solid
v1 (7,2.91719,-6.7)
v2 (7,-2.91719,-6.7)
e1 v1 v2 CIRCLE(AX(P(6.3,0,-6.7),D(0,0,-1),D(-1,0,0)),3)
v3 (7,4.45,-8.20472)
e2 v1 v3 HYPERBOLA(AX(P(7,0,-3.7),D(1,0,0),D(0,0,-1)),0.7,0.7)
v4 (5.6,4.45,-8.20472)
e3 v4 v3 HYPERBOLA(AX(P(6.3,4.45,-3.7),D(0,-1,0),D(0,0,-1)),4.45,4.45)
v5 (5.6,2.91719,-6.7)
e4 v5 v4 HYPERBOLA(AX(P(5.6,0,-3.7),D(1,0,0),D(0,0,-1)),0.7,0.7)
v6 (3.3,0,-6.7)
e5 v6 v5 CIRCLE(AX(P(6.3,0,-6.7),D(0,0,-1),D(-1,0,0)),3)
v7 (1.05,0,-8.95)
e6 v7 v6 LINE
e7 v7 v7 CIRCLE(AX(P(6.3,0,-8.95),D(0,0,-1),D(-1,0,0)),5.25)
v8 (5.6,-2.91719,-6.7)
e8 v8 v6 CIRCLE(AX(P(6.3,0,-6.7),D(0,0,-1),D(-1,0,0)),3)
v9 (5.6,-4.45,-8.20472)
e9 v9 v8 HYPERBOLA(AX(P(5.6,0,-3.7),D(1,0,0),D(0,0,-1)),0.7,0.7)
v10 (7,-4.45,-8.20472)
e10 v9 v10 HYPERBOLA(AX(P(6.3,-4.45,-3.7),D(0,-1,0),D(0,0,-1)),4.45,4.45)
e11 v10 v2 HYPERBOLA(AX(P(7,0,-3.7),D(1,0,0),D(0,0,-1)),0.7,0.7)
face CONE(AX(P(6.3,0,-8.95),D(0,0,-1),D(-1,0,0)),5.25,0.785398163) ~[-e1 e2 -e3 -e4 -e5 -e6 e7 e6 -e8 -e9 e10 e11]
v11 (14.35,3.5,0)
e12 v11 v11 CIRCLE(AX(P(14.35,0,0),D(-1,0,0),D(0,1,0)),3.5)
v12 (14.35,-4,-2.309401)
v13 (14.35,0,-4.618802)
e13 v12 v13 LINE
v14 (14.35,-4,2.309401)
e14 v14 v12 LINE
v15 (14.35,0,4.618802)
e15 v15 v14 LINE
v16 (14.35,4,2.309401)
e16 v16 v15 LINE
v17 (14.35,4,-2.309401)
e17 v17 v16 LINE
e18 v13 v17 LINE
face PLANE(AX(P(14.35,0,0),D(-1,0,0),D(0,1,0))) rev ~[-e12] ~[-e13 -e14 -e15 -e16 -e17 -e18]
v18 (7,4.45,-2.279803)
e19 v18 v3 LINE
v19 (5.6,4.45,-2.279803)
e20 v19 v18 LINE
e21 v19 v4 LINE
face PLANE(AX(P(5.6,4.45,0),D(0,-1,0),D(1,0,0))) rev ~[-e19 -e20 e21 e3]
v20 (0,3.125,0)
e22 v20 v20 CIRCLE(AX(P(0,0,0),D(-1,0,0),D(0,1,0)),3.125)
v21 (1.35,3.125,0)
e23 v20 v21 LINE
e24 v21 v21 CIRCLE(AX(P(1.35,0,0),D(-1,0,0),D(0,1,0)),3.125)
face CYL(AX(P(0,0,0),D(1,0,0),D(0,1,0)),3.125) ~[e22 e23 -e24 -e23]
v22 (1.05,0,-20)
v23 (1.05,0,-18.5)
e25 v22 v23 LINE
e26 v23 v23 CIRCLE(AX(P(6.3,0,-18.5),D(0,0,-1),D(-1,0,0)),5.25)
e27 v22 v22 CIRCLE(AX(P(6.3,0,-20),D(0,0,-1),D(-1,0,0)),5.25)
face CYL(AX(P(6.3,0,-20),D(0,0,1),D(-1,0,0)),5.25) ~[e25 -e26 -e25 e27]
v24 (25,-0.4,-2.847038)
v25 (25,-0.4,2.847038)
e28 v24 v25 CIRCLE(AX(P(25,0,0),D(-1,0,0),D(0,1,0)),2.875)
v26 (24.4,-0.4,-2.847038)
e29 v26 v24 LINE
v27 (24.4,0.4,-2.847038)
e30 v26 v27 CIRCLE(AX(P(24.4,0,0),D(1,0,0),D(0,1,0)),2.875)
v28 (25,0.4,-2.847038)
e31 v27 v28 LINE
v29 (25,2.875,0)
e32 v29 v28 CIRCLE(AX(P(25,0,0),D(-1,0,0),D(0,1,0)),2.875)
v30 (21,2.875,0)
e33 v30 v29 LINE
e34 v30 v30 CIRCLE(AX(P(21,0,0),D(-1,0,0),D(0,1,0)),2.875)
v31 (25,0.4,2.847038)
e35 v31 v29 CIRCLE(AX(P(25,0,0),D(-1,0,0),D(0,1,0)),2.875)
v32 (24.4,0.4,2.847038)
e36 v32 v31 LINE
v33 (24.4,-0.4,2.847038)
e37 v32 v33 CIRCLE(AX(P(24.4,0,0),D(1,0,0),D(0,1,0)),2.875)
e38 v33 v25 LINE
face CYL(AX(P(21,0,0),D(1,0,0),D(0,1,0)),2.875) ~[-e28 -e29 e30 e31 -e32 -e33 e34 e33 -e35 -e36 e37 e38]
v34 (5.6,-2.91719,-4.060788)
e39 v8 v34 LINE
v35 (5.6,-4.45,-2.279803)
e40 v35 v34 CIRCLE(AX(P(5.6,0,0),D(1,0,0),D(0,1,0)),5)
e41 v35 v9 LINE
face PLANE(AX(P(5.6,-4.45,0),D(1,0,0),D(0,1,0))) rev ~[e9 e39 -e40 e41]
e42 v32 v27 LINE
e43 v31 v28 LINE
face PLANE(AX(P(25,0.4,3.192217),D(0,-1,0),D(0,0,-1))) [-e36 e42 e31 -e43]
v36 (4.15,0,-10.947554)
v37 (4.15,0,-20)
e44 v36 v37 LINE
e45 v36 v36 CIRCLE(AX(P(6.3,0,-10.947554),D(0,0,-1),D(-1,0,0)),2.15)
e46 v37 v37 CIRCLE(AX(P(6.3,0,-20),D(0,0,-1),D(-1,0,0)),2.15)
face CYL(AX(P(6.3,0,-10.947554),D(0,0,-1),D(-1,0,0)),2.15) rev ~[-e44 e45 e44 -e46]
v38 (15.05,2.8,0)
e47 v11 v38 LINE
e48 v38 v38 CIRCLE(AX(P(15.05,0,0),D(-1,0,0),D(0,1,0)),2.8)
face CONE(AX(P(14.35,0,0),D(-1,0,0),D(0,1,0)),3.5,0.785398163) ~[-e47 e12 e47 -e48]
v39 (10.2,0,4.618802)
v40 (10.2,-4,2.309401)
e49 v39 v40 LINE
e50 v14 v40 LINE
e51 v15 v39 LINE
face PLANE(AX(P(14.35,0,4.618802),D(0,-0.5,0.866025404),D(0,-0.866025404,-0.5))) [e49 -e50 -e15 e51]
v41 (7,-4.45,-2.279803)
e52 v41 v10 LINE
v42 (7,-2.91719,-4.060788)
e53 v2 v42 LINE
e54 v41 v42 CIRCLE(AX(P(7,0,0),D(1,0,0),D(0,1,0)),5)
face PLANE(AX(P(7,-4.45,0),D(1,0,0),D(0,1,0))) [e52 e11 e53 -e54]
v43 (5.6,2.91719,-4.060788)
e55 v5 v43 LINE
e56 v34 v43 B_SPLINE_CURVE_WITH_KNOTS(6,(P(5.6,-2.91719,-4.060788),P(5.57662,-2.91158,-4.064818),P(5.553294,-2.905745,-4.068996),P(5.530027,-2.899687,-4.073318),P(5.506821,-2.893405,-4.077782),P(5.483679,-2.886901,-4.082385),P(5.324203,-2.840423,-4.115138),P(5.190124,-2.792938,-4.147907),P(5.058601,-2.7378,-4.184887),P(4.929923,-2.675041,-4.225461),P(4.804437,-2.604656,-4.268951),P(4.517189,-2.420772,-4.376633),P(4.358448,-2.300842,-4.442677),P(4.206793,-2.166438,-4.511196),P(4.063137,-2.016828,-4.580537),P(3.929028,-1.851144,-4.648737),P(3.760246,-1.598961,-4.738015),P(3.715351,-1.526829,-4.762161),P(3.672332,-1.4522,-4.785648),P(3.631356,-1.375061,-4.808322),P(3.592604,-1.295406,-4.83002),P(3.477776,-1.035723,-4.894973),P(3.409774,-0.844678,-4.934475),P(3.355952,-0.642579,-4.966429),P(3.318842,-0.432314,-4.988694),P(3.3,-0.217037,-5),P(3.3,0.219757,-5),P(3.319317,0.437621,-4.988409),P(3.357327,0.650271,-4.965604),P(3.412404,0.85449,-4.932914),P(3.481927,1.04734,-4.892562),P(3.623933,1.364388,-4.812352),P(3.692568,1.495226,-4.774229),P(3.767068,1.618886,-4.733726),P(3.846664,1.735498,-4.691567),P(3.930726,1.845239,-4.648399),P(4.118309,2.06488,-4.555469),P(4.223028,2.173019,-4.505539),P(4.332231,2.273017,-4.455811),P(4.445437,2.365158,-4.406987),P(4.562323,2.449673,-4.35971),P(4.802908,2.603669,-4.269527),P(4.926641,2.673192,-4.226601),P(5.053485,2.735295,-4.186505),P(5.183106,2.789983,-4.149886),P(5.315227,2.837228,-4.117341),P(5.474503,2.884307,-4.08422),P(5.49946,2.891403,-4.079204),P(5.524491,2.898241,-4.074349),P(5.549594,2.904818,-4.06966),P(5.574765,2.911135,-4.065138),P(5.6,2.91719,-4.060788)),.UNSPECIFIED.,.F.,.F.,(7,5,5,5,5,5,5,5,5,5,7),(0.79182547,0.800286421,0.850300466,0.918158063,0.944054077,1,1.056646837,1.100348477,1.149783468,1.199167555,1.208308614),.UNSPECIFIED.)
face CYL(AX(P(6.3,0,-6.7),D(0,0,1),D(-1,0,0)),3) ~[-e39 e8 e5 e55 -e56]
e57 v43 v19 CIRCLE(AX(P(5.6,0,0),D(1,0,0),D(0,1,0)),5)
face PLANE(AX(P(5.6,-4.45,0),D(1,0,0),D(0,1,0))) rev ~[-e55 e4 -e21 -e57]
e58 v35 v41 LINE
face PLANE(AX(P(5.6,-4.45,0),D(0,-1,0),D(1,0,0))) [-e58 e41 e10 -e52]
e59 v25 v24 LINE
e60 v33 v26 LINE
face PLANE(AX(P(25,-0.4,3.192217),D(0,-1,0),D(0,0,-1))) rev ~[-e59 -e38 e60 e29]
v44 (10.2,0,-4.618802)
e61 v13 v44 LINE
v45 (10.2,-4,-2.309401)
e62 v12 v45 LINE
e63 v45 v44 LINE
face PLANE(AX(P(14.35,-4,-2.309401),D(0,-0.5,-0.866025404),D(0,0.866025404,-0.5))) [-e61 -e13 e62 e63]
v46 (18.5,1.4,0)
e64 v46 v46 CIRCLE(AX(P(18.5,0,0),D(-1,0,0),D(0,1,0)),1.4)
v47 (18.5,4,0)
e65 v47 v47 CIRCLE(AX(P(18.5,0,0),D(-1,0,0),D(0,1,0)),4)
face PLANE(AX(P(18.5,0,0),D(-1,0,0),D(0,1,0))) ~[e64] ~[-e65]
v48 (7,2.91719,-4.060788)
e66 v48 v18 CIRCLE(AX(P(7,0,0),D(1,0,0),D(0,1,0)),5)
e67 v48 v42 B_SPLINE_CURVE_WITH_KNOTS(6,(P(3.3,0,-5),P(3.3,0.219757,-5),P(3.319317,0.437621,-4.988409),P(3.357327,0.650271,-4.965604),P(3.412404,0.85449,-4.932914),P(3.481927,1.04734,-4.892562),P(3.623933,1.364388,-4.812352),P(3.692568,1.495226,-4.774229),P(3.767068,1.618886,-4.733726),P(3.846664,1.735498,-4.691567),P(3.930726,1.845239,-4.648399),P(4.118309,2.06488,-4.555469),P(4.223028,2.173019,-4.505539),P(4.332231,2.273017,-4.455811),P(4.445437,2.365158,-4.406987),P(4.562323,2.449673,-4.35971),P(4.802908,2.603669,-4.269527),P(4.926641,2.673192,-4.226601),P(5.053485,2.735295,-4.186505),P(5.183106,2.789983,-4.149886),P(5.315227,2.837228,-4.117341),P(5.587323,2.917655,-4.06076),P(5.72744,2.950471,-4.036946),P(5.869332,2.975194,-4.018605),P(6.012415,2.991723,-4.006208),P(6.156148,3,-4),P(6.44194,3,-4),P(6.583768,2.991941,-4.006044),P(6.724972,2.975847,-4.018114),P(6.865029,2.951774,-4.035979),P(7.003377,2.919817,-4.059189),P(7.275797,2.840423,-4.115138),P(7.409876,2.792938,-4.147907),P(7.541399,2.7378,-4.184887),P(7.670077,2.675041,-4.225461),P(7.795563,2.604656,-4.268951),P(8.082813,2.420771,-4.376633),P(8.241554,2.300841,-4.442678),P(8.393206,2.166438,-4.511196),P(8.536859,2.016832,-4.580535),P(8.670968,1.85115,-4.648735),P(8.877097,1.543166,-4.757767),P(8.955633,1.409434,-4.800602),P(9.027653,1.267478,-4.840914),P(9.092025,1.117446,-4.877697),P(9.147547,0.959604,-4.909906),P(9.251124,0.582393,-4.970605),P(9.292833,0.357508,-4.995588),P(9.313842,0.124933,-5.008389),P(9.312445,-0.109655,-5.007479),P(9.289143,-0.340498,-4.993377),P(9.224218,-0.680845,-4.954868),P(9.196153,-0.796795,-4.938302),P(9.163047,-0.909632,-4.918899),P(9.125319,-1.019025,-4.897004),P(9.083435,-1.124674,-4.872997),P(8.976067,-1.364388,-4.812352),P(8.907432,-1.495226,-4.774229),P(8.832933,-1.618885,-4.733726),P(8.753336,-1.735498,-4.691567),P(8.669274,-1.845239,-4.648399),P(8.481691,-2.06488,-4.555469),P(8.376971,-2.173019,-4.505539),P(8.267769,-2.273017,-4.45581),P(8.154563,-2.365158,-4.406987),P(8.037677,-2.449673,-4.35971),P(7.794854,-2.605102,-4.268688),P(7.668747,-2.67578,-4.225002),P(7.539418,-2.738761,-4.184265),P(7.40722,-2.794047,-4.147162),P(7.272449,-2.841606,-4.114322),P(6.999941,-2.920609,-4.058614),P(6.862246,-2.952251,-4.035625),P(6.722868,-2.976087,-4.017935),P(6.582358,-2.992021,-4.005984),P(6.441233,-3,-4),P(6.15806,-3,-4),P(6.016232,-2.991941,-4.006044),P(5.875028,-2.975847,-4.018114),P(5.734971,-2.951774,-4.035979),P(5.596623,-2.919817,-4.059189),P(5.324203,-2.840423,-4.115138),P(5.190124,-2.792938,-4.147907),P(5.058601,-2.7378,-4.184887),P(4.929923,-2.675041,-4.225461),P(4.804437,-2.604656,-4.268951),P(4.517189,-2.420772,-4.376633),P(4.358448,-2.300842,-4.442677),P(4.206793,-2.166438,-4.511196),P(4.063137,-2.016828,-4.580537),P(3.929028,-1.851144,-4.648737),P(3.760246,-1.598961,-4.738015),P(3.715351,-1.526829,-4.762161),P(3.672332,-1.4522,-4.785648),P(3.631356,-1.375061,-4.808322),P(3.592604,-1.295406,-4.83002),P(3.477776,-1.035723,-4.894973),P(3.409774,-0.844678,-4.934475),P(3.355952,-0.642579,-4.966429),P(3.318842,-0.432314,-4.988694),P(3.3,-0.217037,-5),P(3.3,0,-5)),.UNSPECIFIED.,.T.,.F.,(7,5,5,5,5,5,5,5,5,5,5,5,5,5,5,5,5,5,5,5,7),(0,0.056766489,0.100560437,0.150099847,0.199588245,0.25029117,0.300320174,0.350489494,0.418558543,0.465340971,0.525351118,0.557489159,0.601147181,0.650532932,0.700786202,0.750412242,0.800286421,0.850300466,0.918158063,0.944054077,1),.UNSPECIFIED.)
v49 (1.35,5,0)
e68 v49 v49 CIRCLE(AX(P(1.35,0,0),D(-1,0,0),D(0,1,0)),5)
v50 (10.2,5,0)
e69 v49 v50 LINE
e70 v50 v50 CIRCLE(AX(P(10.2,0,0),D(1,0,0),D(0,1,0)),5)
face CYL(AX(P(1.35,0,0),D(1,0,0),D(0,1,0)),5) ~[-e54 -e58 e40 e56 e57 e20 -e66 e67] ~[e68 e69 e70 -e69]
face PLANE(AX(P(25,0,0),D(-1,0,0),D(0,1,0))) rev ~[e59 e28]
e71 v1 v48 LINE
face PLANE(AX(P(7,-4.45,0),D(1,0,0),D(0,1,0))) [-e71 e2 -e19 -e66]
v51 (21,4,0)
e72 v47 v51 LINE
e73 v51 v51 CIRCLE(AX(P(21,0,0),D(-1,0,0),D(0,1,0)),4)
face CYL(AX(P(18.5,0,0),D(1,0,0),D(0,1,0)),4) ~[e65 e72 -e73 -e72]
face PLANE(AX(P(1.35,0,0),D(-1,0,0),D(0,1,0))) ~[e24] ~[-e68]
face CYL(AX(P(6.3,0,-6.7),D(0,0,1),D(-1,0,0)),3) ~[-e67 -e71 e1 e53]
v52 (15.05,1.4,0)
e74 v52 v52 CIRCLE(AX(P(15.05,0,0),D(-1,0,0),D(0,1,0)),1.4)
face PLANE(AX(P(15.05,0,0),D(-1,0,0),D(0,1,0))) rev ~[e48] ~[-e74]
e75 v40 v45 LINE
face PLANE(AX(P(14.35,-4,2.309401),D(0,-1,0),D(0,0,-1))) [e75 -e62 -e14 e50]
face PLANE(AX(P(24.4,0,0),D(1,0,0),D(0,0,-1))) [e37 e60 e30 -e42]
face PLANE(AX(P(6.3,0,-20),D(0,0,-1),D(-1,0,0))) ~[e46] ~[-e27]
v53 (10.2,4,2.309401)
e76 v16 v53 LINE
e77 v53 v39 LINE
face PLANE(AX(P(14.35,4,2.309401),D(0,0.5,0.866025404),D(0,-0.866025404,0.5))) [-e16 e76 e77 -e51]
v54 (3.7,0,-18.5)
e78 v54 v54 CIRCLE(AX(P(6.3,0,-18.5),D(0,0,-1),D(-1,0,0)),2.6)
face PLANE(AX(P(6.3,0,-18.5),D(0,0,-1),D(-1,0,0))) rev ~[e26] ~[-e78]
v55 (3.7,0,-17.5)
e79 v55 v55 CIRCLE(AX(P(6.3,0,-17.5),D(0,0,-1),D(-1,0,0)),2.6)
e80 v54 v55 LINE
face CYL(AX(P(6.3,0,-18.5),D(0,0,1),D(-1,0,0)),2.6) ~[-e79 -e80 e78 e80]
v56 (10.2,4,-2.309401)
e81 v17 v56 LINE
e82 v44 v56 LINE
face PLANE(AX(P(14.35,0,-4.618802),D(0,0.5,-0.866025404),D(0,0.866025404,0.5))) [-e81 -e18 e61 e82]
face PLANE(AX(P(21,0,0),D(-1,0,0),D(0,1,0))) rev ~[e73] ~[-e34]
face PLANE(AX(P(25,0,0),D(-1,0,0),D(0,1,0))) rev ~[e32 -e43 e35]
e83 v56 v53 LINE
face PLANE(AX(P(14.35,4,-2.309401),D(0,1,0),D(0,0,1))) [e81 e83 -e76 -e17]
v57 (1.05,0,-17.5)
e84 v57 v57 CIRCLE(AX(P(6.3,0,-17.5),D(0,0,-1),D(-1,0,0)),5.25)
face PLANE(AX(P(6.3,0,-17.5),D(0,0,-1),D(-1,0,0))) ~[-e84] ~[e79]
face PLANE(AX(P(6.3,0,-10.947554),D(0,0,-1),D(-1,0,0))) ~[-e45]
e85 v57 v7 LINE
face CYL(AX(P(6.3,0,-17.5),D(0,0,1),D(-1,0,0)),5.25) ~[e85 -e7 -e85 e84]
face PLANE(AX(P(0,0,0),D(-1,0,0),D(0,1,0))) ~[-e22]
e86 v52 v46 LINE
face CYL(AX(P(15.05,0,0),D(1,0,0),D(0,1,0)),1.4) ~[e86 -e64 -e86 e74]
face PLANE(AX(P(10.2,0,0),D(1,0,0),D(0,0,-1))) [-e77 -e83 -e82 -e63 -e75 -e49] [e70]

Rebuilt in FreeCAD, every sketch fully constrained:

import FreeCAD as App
import Part
import Sketcher

V = App.Vector
Q = App.Units.Quantity


def add_polygon(sketch, points):
    """Adds a closed chain of lines whose ends are joined by coincident constraints."""
    first, n = sketch.GeometryCount, len(points)
    for a, b in zip(points, points[1:] + points[:1]):
        sketch.addGeometry(Part.LineSegment(App.Vector(*a, 0), App.Vector(*b, 0)), False)
    for i in range(n):
        sketch.addConstraint(Sketcher.Constraint("Coincident", first + i, 2, first + (i + 1) % n, 1))

doc = App.newDocument("Part")
body = doc.addObject("PartDesign::Body", "Body")

sketch1 = body.newObject("Sketcher::SketchObject", "Sketch")
sketch1.AttachmentSupport = (doc.getObject("XY_Plane"), [""])
sketch1.MapMode = "FlatFace"
add_polygon(sketch1, [(0, 3.1), (0, 0), (25, 0), (25, 2.9), (21, 2.9), (21, 4), (18.5, 4), (18.5, 1.4), (15.1, 1.4), (15.1, 2.8), (14.3, 3.5), (14.3, 5), (1.4, 5), (1.4, 3.1)])
sketch1.addConstraint([
    Sketcher.Constraint("Vertical", 0),
    Sketcher.Constraint("Horizontal", 1),
    Sketcher.Constraint("Vertical", 2),
    Sketcher.Constraint("Horizontal", 3),
    Sketcher.Constraint("Vertical", 4),
    Sketcher.Constraint("Horizontal", 5),
    Sketcher.Constraint("Vertical", 6),
    Sketcher.Constraint("Horizontal", 7),
    Sketcher.Constraint("Vertical", 8),
    Sketcher.Constraint("Vertical", 10),
    Sketcher.Constraint("Horizontal", 11),
    Sketcher.Constraint("Vertical", 12),
    Sketcher.Constraint("Horizontal", 13),
    Sketcher.Constraint("Coincident", 0, 2, -1, 1),
    Sketcher.Constraint("DistanceX", 1, 1, 1, 2, Q("25 mm")),
    Sketcher.Constraint("DistanceX", 3, 2, 3, 1, Q("4 mm")),
    Sketcher.Constraint("DistanceX", 11, 2, 11, 1, Q("13 mm")),
    Sketcher.Constraint("Angle", 9, Q("135 deg")),
    Sketcher.Constraint("DistanceX", 5, 2, 5, 1, Q("2.5 mm")),
    Sketcher.Constraint("DistanceY", 6, 2, 6, 1, Q("2.6 mm")),
    Sketcher.Constraint("DistanceY", 8, 1, 8, 2, Q("1.4 mm")),
    Sketcher.Constraint("DistanceY", 10, 1, 10, 2, Q("1.5 mm")),
    Sketcher.Constraint("DistanceY", -1, 1, 4, 2, Q("4 mm")),
    Sketcher.Constraint("DistanceY", -1, 1, 10, 2, Q("5 mm")),
    Sketcher.Constraint("DistanceX", 7, 2, 7, 1, Q("3.45 mm")),
    Sketcher.Constraint("DistanceY", 0, 2, 0, 1, Q("3.125 mm")),
    Sketcher.Constraint("DistanceY", 2, 1, 2, 2, Q("2.875 mm")),
])
revolution = body.newObject("PartDesign::Revolution", "Revolution")
revolution.Profile = sketch1
revolution.ReferenceAxis = (sketch1, ["H_Axis"])
revolution.Angle = 360

sketch2 = body.newObject("Sketcher::SketchObject", "Sketch001")
sketch2.AttachmentSupport = (doc.getObject("YZ_Plane"), [""])
sketch2.MapMode = "FlatFace"
sketch2.AttachmentOffset = App.Placement(V(0, 0, 14.35), App.Rotation())
add_polygon(sketch2, [(8.9, 8.9), (-8.9, 8.9), (-8.9, -8.9), (8.9, -8.9)])
add_polygon(sketch2, [(4, -2.3), (0, -4.6), (-4, -2.3), (-4, 2.3), (0, 4.6), (4, 2.3)])
sketch2.addConstraint([
    Sketcher.Constraint("Horizontal", 0),
    Sketcher.Constraint("Vertical", 1),
    Sketcher.Constraint("Horizontal", 2),
    Sketcher.Constraint("Vertical", 3),
    Sketcher.Constraint("Vertical", 6),
    Sketcher.Constraint("Vertical", 9),
    Sketcher.Constraint("Symmetric", 0, 2, 2, 2, -1, 1),
    Sketcher.Constraint("Symmetric", 4, 2, 7, 2, -1, 1),
    Sketcher.Constraint("Symmetric", 5, 2, 8, 2, -1, 1),
    Sketcher.Constraint("PointOnObject", 4, 2, -2),
    Sketcher.Constraint("Parallel", 4, 7),
    Sketcher.Constraint("Horizontal", 6, 2, 8, 2),
    Sketcher.Constraint("Equal", 2, 1),
    Sketcher.Constraint("Angle", 4, Q("-150 deg")),
    Sketcher.Constraint("DistanceX", 5, 2, -1, 1, Q("4 mm")),
    Sketcher.Constraint("DistanceX", 0, 2, 0, 1, Q("17.744 mm")),
    Sketcher.Constraint("DistanceY", 5, 2, -1, 1, Q("2.309401 mm")),
])
pocket1 = body.newObject("PartDesign::Pocket", "Pocket")
pocket1.Profile = sketch2
pocket1.Length = 4.15

sketch3 = body.newObject("Sketcher::SketchObject", "Sketch002")
sketch3.AttachmentSupport = (doc.getObject("YZ_Plane"), [""])
sketch3.MapMode = "FlatFace"
sketch3.AttachmentOffset = App.Placement(V(0, 0, 25), App.Rotation())
add_polygon(sketch3, [(0.4, 3.2), (-0.4, 3.2), (-0.4, -3.2), (0.4, -3.2)])
sketch3.addConstraint([
    Sketcher.Constraint("Horizontal", 0),
    Sketcher.Constraint("Vertical", 1),
    Sketcher.Constraint("Horizontal", 2),
    Sketcher.Constraint("Vertical", 3),
    Sketcher.Constraint("Symmetric", 0, 2, 2, 2, -1, 1),
    Sketcher.Constraint("DistanceX", 0, 2, 0, 1, Q("0.8 mm")),
    Sketcher.Constraint("DistanceY", 1, 2, 1, 1, Q("6.384435 mm")),
])
pocket2 = body.newObject("PartDesign::Pocket", "Pocket001")
pocket2.Profile = sketch3
pocket2.Length = 0.6

sketch4 = body.newObject("Sketcher::SketchObject", "Sketch003")
sketch4.AttachmentSupport = (doc.getObject("XZ_Plane"), [""])
sketch4.MapMode = "FlatFace"
add_polygon(sketch4, [(6.3, 0), (6.3, -10.9), (4.2, -10.9), (4.2, -20), (1.1, -20), (1.1, -18.5), (3.7, -18.5), (3.7, -17.5), (1.1, -17.5), (1.1, -8.9), (3.3, -6.7), (3.3, 0)])
sketch4.addGeometry(Part.LineSegment(V(6.3, 0, 0), V(6.3, -20, 0)), True)
sketch4.addConstraint([
    Sketcher.Constraint("Vertical", 0),
    Sketcher.Constraint("Horizontal", 1),
    Sketcher.Constraint("Vertical", 2),
    Sketcher.Constraint("Horizontal", 3),
    Sketcher.Constraint("Vertical", 4),
    Sketcher.Constraint("Horizontal", 5),
    Sketcher.Constraint("Vertical", 6),
    Sketcher.Constraint("Horizontal", 7),
    Sketcher.Constraint("Vertical", 8),
    Sketcher.Constraint("Vertical", 10),
    Sketcher.Constraint("Horizontal", 11),
    Sketcher.Constraint("Vertical", 12),
    Sketcher.Constraint("Coincident", 12, 1, 11, 2),
    Sketcher.Constraint("PointOnObject", 10, 2, -1),
    Sketcher.Constraint("Horizontal", 3, 2, 12, 2),
    Sketcher.Constraint("Vertical", 4, 2, 7, 2),
    Sketcher.Constraint("DistanceX", 11, 1, 11, 2, Q("3 mm")),
    Sketcher.Constraint("DistanceY", 6, 1, 6, 2, Q("1 mm")),
    Sketcher.Constraint("DistanceY", 12, 2, 12, 1, Q("20 mm")),
    Sketcher.Constraint("Angle", 9, Q("45 deg")),
    Sketcher.Constraint("DistanceX", 3, 2, 3, 1, Q("3.1 mm")),
    Sketcher.Constraint("DistanceY", 4, 1, 4, 2, Q("1.5 mm")),
    Sketcher.Constraint("DistanceY", 10, 1, 10, 2, Q("6.7 mm")),
    Sketcher.Constraint("DistanceX", 1, 2, 1, 1, Q("2.15 mm")),
    Sketcher.Constraint("DistanceX", 5, 1, 5, 2, Q("2.65 mm")),
    Sketcher.Constraint("DistanceX", -1, 1, 0, 2, Q("6.3 mm")),
    Sketcher.Constraint("DistanceY", 0, 2, 0, 1, Q("10.947554 mm")),
])
revolution2 = body.newObject("PartDesign::Revolution", "Revolution001")
revolution2.Profile = sketch4
revolution2.ReferenceAxis = (sketch4, ["Axis0"])
revolution2.Angle = 360

sketch5 = body.newObject("Sketcher::SketchObject", "Sketch004")
sketch5.AttachmentSupport = (doc.getObject("XY_Plane"), [""])
sketch5.MapMode = "FlatFace"
add_polygon(sketch5, [(5.6, 4.5), (5.6, -4.5), (7, -4.5), (7, 4.5)])
sketch5.addConstraint([
    Sketcher.Constraint("Vertical", 0),
    Sketcher.Constraint("Horizontal", 1),
    Sketcher.Constraint("Vertical", 2),
    Sketcher.Constraint("Horizontal", 3),
    Sketcher.Constraint("DistanceX", 1, 1, 1, 2, Q("1.4 mm")),
    Sketcher.Constraint("DistanceY", 0, 2, 0, 1, Q("8.9 mm")),
    Sketcher.Constraint("DistanceX", -1, 1, 1, 2, Q("7 mm")),
    Sketcher.Constraint("DistanceY", 0, 2, -1, 1, Q("4.45 mm")),
])
pad1 = body.newObject("PartDesign::Pad", "Pad")
pad1.Profile = sketch5
pad1.Length = 10
pad1.Reversed = True

doc.recompute()
